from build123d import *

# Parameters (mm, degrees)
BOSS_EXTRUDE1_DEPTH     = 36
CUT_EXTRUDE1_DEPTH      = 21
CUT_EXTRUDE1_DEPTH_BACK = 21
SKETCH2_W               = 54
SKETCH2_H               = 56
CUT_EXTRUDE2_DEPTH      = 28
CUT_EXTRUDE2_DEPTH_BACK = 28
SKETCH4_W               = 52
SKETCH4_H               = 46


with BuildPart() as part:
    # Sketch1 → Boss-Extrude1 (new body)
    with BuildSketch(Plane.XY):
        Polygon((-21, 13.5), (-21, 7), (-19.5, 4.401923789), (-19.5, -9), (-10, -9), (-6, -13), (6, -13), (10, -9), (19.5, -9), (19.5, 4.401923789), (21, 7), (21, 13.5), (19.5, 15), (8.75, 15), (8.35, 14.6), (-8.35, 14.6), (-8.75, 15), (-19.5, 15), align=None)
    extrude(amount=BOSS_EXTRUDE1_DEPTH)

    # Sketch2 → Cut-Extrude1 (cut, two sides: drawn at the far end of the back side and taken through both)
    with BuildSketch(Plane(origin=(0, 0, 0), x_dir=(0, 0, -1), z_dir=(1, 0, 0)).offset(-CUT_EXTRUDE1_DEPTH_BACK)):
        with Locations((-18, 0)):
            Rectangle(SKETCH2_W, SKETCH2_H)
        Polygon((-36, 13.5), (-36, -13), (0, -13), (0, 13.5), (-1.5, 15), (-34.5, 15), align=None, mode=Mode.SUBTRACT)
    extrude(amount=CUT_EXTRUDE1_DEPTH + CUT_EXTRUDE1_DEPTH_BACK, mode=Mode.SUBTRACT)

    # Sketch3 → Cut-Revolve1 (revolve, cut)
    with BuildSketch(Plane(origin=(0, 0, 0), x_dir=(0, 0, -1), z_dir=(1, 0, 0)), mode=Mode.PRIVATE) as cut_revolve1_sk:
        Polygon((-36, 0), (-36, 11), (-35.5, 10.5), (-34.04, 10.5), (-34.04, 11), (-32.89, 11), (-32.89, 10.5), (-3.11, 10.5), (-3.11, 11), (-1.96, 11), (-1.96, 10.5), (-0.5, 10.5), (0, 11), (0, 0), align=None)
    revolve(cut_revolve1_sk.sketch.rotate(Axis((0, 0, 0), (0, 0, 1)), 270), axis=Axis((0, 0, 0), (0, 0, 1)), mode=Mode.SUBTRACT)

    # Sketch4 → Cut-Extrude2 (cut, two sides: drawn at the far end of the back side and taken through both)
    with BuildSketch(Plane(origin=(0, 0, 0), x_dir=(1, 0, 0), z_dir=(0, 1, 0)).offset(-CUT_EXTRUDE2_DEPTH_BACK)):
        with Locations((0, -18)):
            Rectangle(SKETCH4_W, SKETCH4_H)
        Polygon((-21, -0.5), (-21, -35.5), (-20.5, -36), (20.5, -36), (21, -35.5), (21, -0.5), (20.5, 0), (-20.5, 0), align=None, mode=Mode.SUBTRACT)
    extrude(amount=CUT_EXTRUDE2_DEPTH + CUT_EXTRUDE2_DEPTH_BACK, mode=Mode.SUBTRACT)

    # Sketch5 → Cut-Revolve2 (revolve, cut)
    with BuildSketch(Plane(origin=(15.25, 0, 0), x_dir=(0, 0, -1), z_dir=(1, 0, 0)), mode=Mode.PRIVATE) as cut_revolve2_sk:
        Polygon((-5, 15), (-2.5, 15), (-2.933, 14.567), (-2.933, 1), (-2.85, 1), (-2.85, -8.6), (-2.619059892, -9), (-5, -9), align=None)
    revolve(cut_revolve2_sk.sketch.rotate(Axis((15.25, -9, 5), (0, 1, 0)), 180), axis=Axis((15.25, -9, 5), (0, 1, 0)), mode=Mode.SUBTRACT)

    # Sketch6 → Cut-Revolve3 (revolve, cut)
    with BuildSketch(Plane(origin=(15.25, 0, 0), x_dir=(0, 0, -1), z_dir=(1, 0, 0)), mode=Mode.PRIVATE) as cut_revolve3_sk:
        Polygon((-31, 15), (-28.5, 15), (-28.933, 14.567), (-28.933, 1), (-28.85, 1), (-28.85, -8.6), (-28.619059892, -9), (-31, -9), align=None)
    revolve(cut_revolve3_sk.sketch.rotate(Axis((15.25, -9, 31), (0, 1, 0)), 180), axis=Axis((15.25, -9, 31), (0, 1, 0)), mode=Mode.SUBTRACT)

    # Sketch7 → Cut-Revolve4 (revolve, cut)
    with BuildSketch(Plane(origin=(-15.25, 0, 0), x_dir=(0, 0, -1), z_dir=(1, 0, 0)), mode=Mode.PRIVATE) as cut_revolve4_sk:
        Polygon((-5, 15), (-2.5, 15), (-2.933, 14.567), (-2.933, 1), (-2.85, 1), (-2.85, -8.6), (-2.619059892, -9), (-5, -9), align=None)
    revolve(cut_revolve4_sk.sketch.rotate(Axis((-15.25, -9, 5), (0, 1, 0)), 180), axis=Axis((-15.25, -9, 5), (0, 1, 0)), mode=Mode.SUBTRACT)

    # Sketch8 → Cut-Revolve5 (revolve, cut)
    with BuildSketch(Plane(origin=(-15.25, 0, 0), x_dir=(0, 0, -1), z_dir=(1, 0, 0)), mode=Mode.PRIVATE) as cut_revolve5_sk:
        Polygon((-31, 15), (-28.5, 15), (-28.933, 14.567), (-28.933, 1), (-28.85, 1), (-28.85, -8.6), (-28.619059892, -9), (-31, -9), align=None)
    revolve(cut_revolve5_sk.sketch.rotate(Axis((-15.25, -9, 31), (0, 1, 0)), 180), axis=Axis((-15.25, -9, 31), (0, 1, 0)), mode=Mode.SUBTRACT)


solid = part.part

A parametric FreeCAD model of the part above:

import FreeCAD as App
import Part
import Sketcher

V = App.Vector
Q = App.Units.Quantity

doc = App.newDocument("Part")
params = doc.addObject("Spreadsheet::Sheet", "Params")
for row, (alias, value) in enumerate([
    ("sketch1_width", "12 mm"),
    ("sketch1_length", "3 mm"),
    ("sketch1_width2", "9.5 mm"),
    ("sketch1_width3", "16.7 mm"),
    ("sketch1_height", "6.5 mm"),
    ("pad1_length", "36 mm"),
    ("sketch2_width", "56 mm"),
    ("sketch2_height", "54 mm"),
    ("sketch2_height2", "33 mm"),
    ("sketch2_height3", "36 mm"),
    ("sketch2_width2", "26.5 mm"),
    ("sketch3_width", "11 mm"),
    ("sketch3_height", "36 mm"),
    ("sketch3_width2", "0.5 mm"),
    ("sketch3_height2", "1.46 mm"),
    ("sketch3_height3", "1.15 mm"),
    ("groove_angle", "360 deg"),
    ("sketch4_width", "52 mm"),
    ("sketch4_width2", "41 mm"),
    ("sketch4_height", "46 mm"),
    ("sketch4_height2", "35 mm"),
    ("sketch5_width", "24 mm"),
    ("sketch5_width2", "9.6 mm"),
    ("sketch5_height", "2.5 mm"),
    ("groove2_angle", "360 deg"),
    ("sketch6_width", "24 mm"),
    ("sketch6_width2", "9.6 mm"),
    ("sketch6_height", "2.5 mm"),
    ("groove3_angle", "360 deg"),
    ("sketch7_width", "24 mm"),
    ("sketch7_width2", "9.6 mm"),
    ("sketch7_height", "2.5 mm"),
    ("groove4_angle", "360 deg"),
    ("sketch8_width", "24 mm"),
    ("sketch8_width2", "9.6 mm"),
    ("sketch8_height", "2.5 mm"),
    ("groove5_angle", "360 deg"),
], start=1):
    params.set(f"A{row}", alias)
    params.set(f"B{row}", "=" + value)
    params.setAlias(f"B{row}", alias)

body = doc.addObject("PartDesign::Body", "Body")

# Sketch on XY plane
sketch1 = body.newObject("Sketcher::SketchObject", "Sketch")
sketch1.AttachmentSupport = (doc.getObject("XY_Plane"), [""])
sketch1.MapMode = "FlatFace"
sketch1.addGeometry(Part.LineSegment(V(-21, 13.5, 0), V(-21, 7, 0)), False)
sketch1.addGeometry(Part.LineSegment(V(-21, 7, 0), V(-19.5, 4.4, 0)), False)
sketch1.addGeometry(Part.LineSegment(V(-19.5, 4.4, 0), V(-19.5, -9, 0)), False)
sketch1.addGeometry(Part.LineSegment(V(-19.5, -9, 0), V(-10, -9, 0)), False)
sketch1.addGeometry(Part.LineSegment(V(-10, -9, 0), V(-6, -13, 0)), False)
sketch1.addGeometry(Part.LineSegment(V(-6, -13, 0), V(6, -13, 0)), False)
sketch1.addGeometry(Part.LineSegment(V(6, -13, 0), V(10, -9, 0)), False)
sketch1.addGeometry(Part.LineSegment(V(10, -9, 0), V(19.5, -9, 0)), False)
sketch1.addGeometry(Part.LineSegment(V(19.5, -9, 0), V(19.5, 4.4, 0)), False)
sketch1.addGeometry(Part.LineSegment(V(19.5, 4.4, 0), V(21, 7, 0)), False)
sketch1.addGeometry(Part.LineSegment(V(21, 7, 0), V(21, 13.5, 0)), False)
sketch1.addGeometry(Part.LineSegment(V(21, 13.5, 0), V(19.5, 15, 0)), False)
sketch1.addGeometry(Part.LineSegment(V(19.5, 15, 0), V(8.8, 15, 0)), False)
sketch1.addGeometry(Part.LineSegment(V(8.8, 15, 0), V(8.3, 14.6, 0)), False)
sketch1.addGeometry(Part.LineSegment(V(8.3, 14.6, 0), V(-8.3, 14.6, 0)), False)
sketch1.addGeometry(Part.LineSegment(V(-8.3, 14.6, 0), V(-8.8, 15, 0)), False)
sketch1.addGeometry(Part.LineSegment(V(-8.8, 15, 0), V(-19.5, 15, 0)), False)
sketch1.addGeometry(Part.LineSegment(V(-19.5, 15, 0), V(-21, 13.5, 0)), False)
sketch1.addConstraint(Sketcher.Constraint("Coincident", 0, 2, 1, 1))
sketch1.addConstraint(Sketcher.Constraint("Coincident", 1, 2, 2, 1))
sketch1.addConstraint(Sketcher.Constraint("Coincident", 2, 2, 3, 1))
sketch1.addConstraint(Sketcher.Constraint("Coincident", 3, 2, 4, 1))
sketch1.addConstraint(Sketcher.Constraint("Coincident", 4, 2, 5, 1))
sketch1.addConstraint(Sketcher.Constraint("Coincident", 5, 2, 6, 1))
sketch1.addConstraint(Sketcher.Constraint("Coincident", 6, 2, 7, 1))
sketch1.addConstraint(Sketcher.Constraint("Coincident", 7, 2, 8, 1))
sketch1.addConstraint(Sketcher.Constraint("Coincident", 8, 2, 9, 1))
sketch1.addConstraint(Sketcher.Constraint("Coincident", 9, 2, 10, 1))
sketch1.addConstraint(Sketcher.Constraint("Coincident", 10, 2, 11, 1))
sketch1.addConstraint(Sketcher.Constraint("Coincident", 11, 2, 12, 1))
sketch1.addConstraint(Sketcher.Constraint("Coincident", 12, 2, 13, 1))
sketch1.addConstraint(Sketcher.Constraint("Coincident", 13, 2, 14, 1))
sketch1.addConstraint(Sketcher.Constraint("Coincident", 14, 2, 15, 1))
sketch1.addConstraint(Sketcher.Constraint("Coincident", 15, 2, 16, 1))
sketch1.addConstraint(Sketcher.Constraint("Coincident", 16, 2, 17, 1))
sketch1.addConstraint(Sketcher.Constraint("Coincident", 17, 2, 0, 1))
sketch1.addConstraint(Sketcher.Constraint("Vertical", 0))
sketch1.addConstraint(Sketcher.Constraint("Vertical", 2))
sketch1.addConstraint(Sketcher.Constraint("Horizontal", 3))
sketch1.addConstraint(Sketcher.Constraint("Horizontal", 5))
sketch1.addConstraint(Sketcher.Constraint("Horizontal", 7))
sketch1.addConstraint(Sketcher.Constraint("Vertical", 8))
sketch1.addConstraint(Sketcher.Constraint("Vertical", 10))
sketch1.addConstraint(Sketcher.Constraint("Horizontal", 12))
sketch1.addConstraint(Sketcher.Constraint("Horizontal", 14))
sketch1.addConstraint(Sketcher.Constraint("Horizontal", 16))
sketch1.addConstraint(Sketcher.Constraint("Symmetric", 3, 2, 6, 2, -2))
sketch1.addConstraint(Sketcher.Constraint("Symmetric", 1, 2, 8, 2, -2))
sketch1.addConstraint(Sketcher.Constraint("Symmetric", 0, 2, 9, 2, -2))
sketch1.addConstraint(Sketcher.Constraint("Symmetric", 12, 2, 15, 2, -2))
sketch1.addConstraint(Sketcher.Constraint("Perpendicular", 4, 6))
sketch1.addConstraint(Sketcher.Constraint("Perpendicular", 6, 11))
sketch1.addConstraint(Sketcher.Constraint("Perpendicular", 11, 13))
sketch1.addConstraint(Sketcher.Constraint("Perpendicular", 13, 15))
sketch1.addConstraint(Sketcher.Constraint("Perpendicular", 15, 17))
sketch1.addConstraint(Sketcher.Constraint("Horizontal", 10, 2, 17, 2))
sketch1.addConstraint(Sketcher.Constraint("Vertical", 8, 2, 11, 2))
sketch1.addConstraint(Sketcher.Constraint("Vertical", 2, 2, 16, 2))
sketch1.addConstraint(Sketcher.Constraint("DistanceX", 5, 1, 5, 2, Q("12 mm")))
sketch1.addConstraint(Sketcher.Constraint("Angle", 1, Q("-60 deg")))
sketch1.addConstraint(Sketcher.Constraint("Distance", 1, Q("3 mm")))
sketch1.addConstraint(Sketcher.Constraint("DistanceX", 3, 1, 3, 2, Q("9.5 mm")))
sketch1.addConstraint(Sketcher.Constraint("DistanceX", 14, 2, 14, 1, Q("16.7 mm")))
sketch1.addConstraint(Sketcher.Constraint("DistanceY", 0, 2, 0, 1, Q("6.5 mm")))
sketch1.addConstraint(Sketcher.Constraint("DistanceX", 0, 2, -1, 1, Q("21 mm")))
sketch1.addConstraint(Sketcher.Constraint("DistanceY", -1, 1, 0, 2, Q("7 mm")))
sketch1.addConstraint(Sketcher.Constraint("DistanceY", 2, 2, -1, 1, Q("9 mm")))
sketch1.addConstraint(Sketcher.Constraint("DistanceX", 12, 2, 12, 1, Q("10.75 mm")))
sketch1.setExpression("Constraints[40]", "Params.sketch1_width")
sketch1.setExpression("Constraints[42]", "Params.sketch1_length")
sketch1.setExpression("Constraints[43]", "Params.sketch1_width2")
sketch1.setExpression("Constraints[44]", "Params.sketch1_width3")
sketch1.setExpression("Constraints[45]", "Params.sketch1_height")
pad1 = body.newObject("PartDesign::Pad", "Pad")
pad1.Profile = sketch1
pad1.setExpression("Length", "Params.pad1_length")

# Sketch on YZ plane
sketch2 = body.newObject("Sketcher::SketchObject", "Sketch001")
sketch2.AttachmentSupport = (doc.getObject("YZ_Plane"), [""])
sketch2.MapMode = "FlatFace"
sketch2.addGeometry(Part.LineSegment(V(28, 45, 0), V(-28, 45, 0)), False)
sketch2.addGeometry(Part.LineSegment(V(-28, 45, 0), V(-28, -9, 0)), False)
sketch2.addGeometry(Part.LineSegment(V(-28, -9, 0), V(28, -9, 0)), False)
sketch2.addGeometry(Part.LineSegment(V(28, -9, 0), V(28, 45, 0)), False)
sketch2.addGeometry(Part.LineSegment(V(-13, 36, 0), V(13.5, 36, 0)), False)
sketch2.addGeometry(Part.LineSegment(V(13.5, 36, 0), V(15, 34.5, 0)), False)
sketch2.addGeometry(Part.LineSegment(V(15, 34.5, 0), V(15, 1.5, 0)), False)
sketch2.addGeometry(Part.LineSegment(V(15, 1.5, 0), V(13.5, 0, 0)), False)
sketch2.addGeometry(Part.LineSegment(V(13.5, 0, 0), V(-13, 0, 0)), False)
sketch2.addGeometry(Part.LineSegment(V(-13, 0, 0), V(-13, 36, 0)), False)
sketch2.addConstraint(Sketcher.Constraint("Coincident", 0, 2, 1, 1))
sketch2.addConstraint(Sketcher.Constraint("Coincident", 1, 2, 2, 1))
sketch2.addConstraint(Sketcher.Constraint("Coincident", 2, 2, 3, 1))
sketch2.addConstraint(Sketcher.Constraint("Coincident", 3, 2, 0, 1))
sketch2.addConstraint(Sketcher.Constraint("Coincident", 4, 2, 5, 1))
sketch2.addConstraint(Sketcher.Constraint("Coincident", 5, 2, 6, 1))
sketch2.addConstraint(Sketcher.Constraint("Coincident", 6, 2, 7, 1))
sketch2.addConstraint(Sketcher.Constraint("Coincident", 7, 2, 8, 1))
sketch2.addConstraint(Sketcher.Constraint("Coincident", 8, 2, 9, 1))
sketch2.addConstraint(Sketcher.Constraint("Coincident", 9, 2, 4, 1))
sketch2.addConstraint(Sketcher.Constraint("Horizontal", 0))
sketch2.addConstraint(Sketcher.Constraint("Vertical", 1))
sketch2.addConstraint(Sketcher.Constraint("Horizontal", 2))
sketch2.addConstraint(Sketcher.Constraint("Vertical", 3))
sketch2.addConstraint(Sketcher.Constraint("Horizontal", 4))
sketch2.addConstraint(Sketcher.Constraint("Vertical", 6))
sketch2.addConstraint(Sketcher.Constraint("Horizontal", 8))
sketch2.addConstraint(Sketcher.Constraint("Vertical", 9))
sketch2.addConstraint(Sketcher.Constraint("PointOnObject", 7, 2, -1))
sketch2.addConstraint(Sketcher.Constraint("Perpendicular", 5, 7))
sketch2.addConstraint(Sketcher.Constraint("Vertical", 4, 2, 7, 2))
sketch2.addConstraint(Sketcher.Constraint("Equal", 5, 7))
sketch2.addConstraint(Sketcher.Constraint("DistanceX", 0, 2, 0, 1, Q("56 mm")))
sketch2.addConstraint(Sketcher.Constraint("DistanceY", 1, 2, 1, 1, Q("54 mm")))
sketch2.addConstraint(Sketcher.Constraint("DistanceY", 6, 2, 6, 1, Q("33 mm")))
sketch2.addConstraint(Sketcher.Constraint("DistanceY", 9, 1, 9, 2, Q("36 mm")))
sketch2.addConstraint(Sketcher.Constraint("DistanceX", 4, 1, 4, 2, Q("26.5 mm")))
sketch2.addConstraint(Sketcher.Constraint("DistanceX", 0, 2, -1, 1, Q("28 mm")))
sketch2.addConstraint(Sketcher.Constraint("DistanceY", -1, 1, 0, 2, Q("45 mm")))
sketch2.addConstraint(Sketcher.Constraint("DistanceX", -1, 1, 5, 2, Q("15 mm")))
sketch2.setExpression("Constraints[22]", "Params.sketch2_width")
sketch2.setExpression("Constraints[23]", "Params.sketch2_height")
sketch2.setExpression("Constraints[24]", "Params.sketch2_height2")
sketch2.setExpression("Constraints[25]", "Params.sketch2_height3")
sketch2.setExpression("Constraints[26]", "Params.sketch2_width2")
pocket1 = body.newObject("PartDesign::Pocket", "Pocket")
pocket1.Profile = sketch2
pocket1.Type = "ThroughAll"
pocket1.Midplane = True

# Sketch on YZ plane
sketch3 = body.newObject("Sketcher::SketchObject", "Sketch002")
sketch3.AttachmentSupport = (doc.getObject("YZ_Plane"), [""])
sketch3.MapMode = "FlatFace"
sketch3.addGeometry(Part.LineSegment(V(11, 36, 0), V(0, 36, 0)), False)
sketch3.addGeometry(Part.LineSegment(V(0, 36, 0), V(0, 0, 0)), False)
sketch3.addGeometry(Part.LineSegment(V(0, 0, 0), V(11, 0, 0)), False)
sketch3.addGeometry(Part.LineSegment(V(11, 0, 0), V(10.5, 0.5, 0)), False)
sketch3.addGeometry(Part.LineSegment(V(10.5, 0.5, 0), V(10.5, 2, 0)), False)
sketch3.addGeometry(Part.LineSegment(V(10.5, 2, 0), V(11, 2, 0)), False)
sketch3.addGeometry(Part.LineSegment(V(11, 2, 0), V(11, 3.1, 0)), False)
sketch3.addGeometry(Part.LineSegment(V(11, 3.1, 0), V(10.5, 3.1, 0)), False)
sketch3.addGeometry(Part.LineSegment(V(10.5, 3.1, 0), V(10.5, 32.9, 0)), False)
sketch3.addGeometry(Part.LineSegment(V(10.5, 32.9, 0), V(11, 32.9, 0)), False)
sketch3.addGeometry(Part.LineSegment(V(11, 32.9, 0), V(11, 34, 0)), False)
sketch3.addGeometry(Part.LineSegment(V(11, 34, 0), V(10.5, 34, 0)), False)
sketch3.addGeometry(Part.LineSegment(V(10.5, 34, 0), V(10.5, 35.5, 0)), False)
sketch3.addGeometry(Part.LineSegment(V(10.5, 35.5, 0), V(11, 36, 0)), False)
sketch3.addConstraint(Sketcher.Constraint("Coincident", 0, 2, 1, 1))
sketch3.addConstraint(Sketcher.Constraint("Coincident", 1, 2, 2, 1))
sketch3.addConstraint(Sketcher.Constraint("Coincident", 2, 2, 3, 1))
sketch3.addConstraint(Sketcher.Constraint("Coincident", 3, 2, 4, 1))
sketch3.addConstraint(Sketcher.Constraint("Coincident", 4, 2, 5, 1))
sketch3.addConstraint(Sketcher.Constraint("Coincident", 5, 2, 6, 1))
sketch3.addConstraint(Sketcher.Constraint("Coincident", 6, 2, 7, 1))
sketch3.addConstraint(Sketcher.Constraint("Coincident", 7, 2, 8, 1))
sketch3.addConstraint(Sketcher.Constraint("Coincident", 8, 2, 9, 1))
sketch3.addConstraint(Sketcher.Constraint("Coincident", 9, 2, 10, 1))
sketch3.addConstraint(Sketcher.Constraint("Coincident", 10, 2, 11, 1))
sketch3.addConstraint(Sketcher.Constraint("Coincident", 11, 2, 12, 1))
sketch3.addConstraint(Sketcher.Constraint("Coincident", 12, 2, 13, 1))
sketch3.addConstraint(Sketcher.Constraint("Coincident", 13, 2, 0, 1))
sketch3.addConstraint(Sketcher.Constraint("Horizontal", 0))
sketch3.addConstraint(Sketcher.Constraint("Vertical", 1))
sketch3.addConstraint(Sketcher.Constraint("Horizontal", 2))
sketch3.addConstraint(Sketcher.Constraint("Vertical", 4))
sketch3.addConstraint(Sketcher.Constraint("Horizontal", 5))
sketch3.addConstraint(Sketcher.Constraint("Vertical", 6))
sketch3.addConstraint(Sketcher.Constraint("Horizontal", 7))
sketch3.addConstraint(Sketcher.Constraint("Vertical", 8))
sketch3.addConstraint(Sketcher.Constraint("Horizontal", 9))
sketch3.addConstraint(Sketcher.Constraint("Vertical", 10))
sketch3.addConstraint(Sketcher.Constraint("Horizontal", 11))
sketch3.addConstraint(Sketcher.Constraint("Vertical", 12))
sketch3.addConstraint(Sketcher.Constraint("Coincident", 1, 2, -1, 1))
sketch3.addConstraint(Sketcher.Constraint("Perpendicular", 3, 13))
sketch3.addConstraint(Sketcher.Constraint("Vertical", 2, 2, 5, 2))
sketch3.addConstraint(Sketcher.Constraint("Vertical", 4, 2, 7, 2))
sketch3.addConstraint(Sketcher.Constraint("Vertical", 6, 2, 9, 2))
sketch3.addConstraint(Sketcher.Constraint("Vertical", 8, 2, 11, 2))
sketch3.addConstraint(Sketcher.Constraint("Vertical", 10, 2, 13, 2))
sketch3.addConstraint(Sketcher.Constraint("Equal", 6, 10))
sketch3.addConstraint(Sketcher.Constraint("Equal", 4, 12))
sketch3.addConstraint(Sketcher.Constraint("Equal", 3, 13))
sketch3.addConstraint(Sketcher.Constraint("DistanceX", 0, 2, 0, 1, Q("11 mm")))
sketch3.addConstraint(Sketcher.Constraint("DistanceY", 1, 2, 1, 1, Q("36 mm")))
sketch3.addConstraint(Sketcher.Constraint("DistanceX", 5, 1, 5, 2, Q("0.5 mm")))
sketch3.addConstraint(Sketcher.Constraint("DistanceY", 4, 1, 4, 2, Q("1.46 mm")))
sketch3.addConstraint(Sketcher.Constraint("DistanceY", 6, 1, 6, 2, Q("1.15 mm")))
sketch3.setExpression("Constraints[36]", "Params.sketch3_width")
sketch3.setExpression("Constraints[37]", "Params.sketch3_height")
sketch3.setExpression("Constraints[38]", "Params.sketch3_width2")
sketch3.setExpression("Constraints[39]", "Params.sketch3_height2")
sketch3.setExpression("Constraints[40]", "Params.sketch3_height3")
groove = body.newObject("PartDesign::Groove", "Groove")
groove.Profile = sketch3
groove.ReferenceAxis = (sketch3, ["V_Axis"])
groove.setExpression("Angle", "Params.groove_angle")

# Sketch on XZ plane
sketch4 = body.newObject("Sketcher::SketchObject", "Sketch003")
sketch4.AttachmentSupport = (doc.getObject("XZ_Plane"), [""])
sketch4.MapMode = "FlatFace"
sketch4.addGeometry(Part.LineSegment(V(-26, -5, 0), V(-26, 41, 0)), False)
sketch4.addGeometry(Part.LineSegment(V(-26, 41, 0), V(26, 41, 0)), False)
sketch4.addGeometry(Part.LineSegment(V(26, 41, 0), V(26, -5, 0)), False)
sketch4.addGeometry(Part.LineSegment(V(26, -5, 0), V(-26, -5, 0)), False)
sketch4.addGeometry(Part.LineSegment(V(-21, 35.5, 0), V(-21, 0.5, 0)), False)
sketch4.addGeometry(Part.LineSegment(V(-21, 0.5, 0), V(-20.5, 0, 0)), False)
sketch4.addGeometry(Part.LineSegment(V(-20.5, 0, 0), V(20.5, 0, 0)), False)
sketch4.addGeometry(Part.LineSegment(V(20.5, 0, 0), V(21, 0.5, 0)), False)
sketch4.addGeometry(Part.LineSegment(V(21, 0.5, 0), V(21, 35.5, 0)), False)
sketch4.addGeometry(Part.LineSegment(V(21, 35.5, 0), V(20.5, 36, 0)), False)
sketch4.addGeometry(Part.LineSegment(V(20.5, 36, 0), V(-20.5, 36, 0)), False)
sketch4.addGeometry(Part.LineSegment(V(-20.5, 36, 0), V(-21, 35.5, 0)), False)
sketch4.addConstraint(Sketcher.Constraint("Coincident", 0, 2, 1, 1))
sketch4.addConstraint(Sketcher.Constraint("Coincident", 1, 2, 2, 1))
sketch4.addConstraint(Sketcher.Constraint("Coincident", 2, 2, 3, 1))
sketch4.addConstraint(Sketcher.Constraint("Coincident", 3, 2, 0, 1))
sketch4.addConstraint(Sketcher.Constraint("Coincident", 4, 2, 5, 1))
sketch4.addConstraint(Sketcher.Constraint("Coincident", 5, 2, 6, 1))
sketch4.addConstraint(Sketcher.Constraint("Coincident", 6, 2, 7, 1))
sketch4.addConstraint(Sketcher.Constraint("Coincident", 7, 2, 8, 1))
sketch4.addConstraint(Sketcher.Constraint("Coincident", 8, 2, 9, 1))
sketch4.addConstraint(Sketcher.Constraint("Coincident", 9, 2, 10, 1))
sketch4.addConstraint(Sketcher.Constraint("Coincident", 10, 2, 11, 1))
sketch4.addConstraint(Sketcher.Constraint("Coincident", 11, 2, 4, 1))
sketch4.addConstraint(Sketcher.Constraint("Vertical", 0))
sketch4.addConstraint(Sketcher.Constraint("Horizontal", 1))
sketch4.addConstraint(Sketcher.Constraint("Vertical", 2))
sketch4.addConstraint(Sketcher.Constraint("Horizontal", 3))
sketch4.addConstraint(Sketcher.Constraint("Vertical", 4))
sketch4.addConstraint(Sketcher.Constraint("Horizontal", 6))
sketch4.addConstraint(Sketcher.Constraint("Vertical", 8))
sketch4.addConstraint(Sketcher.Constraint("Horizontal", 10))
sketch4.addConstraint(Sketcher.Constraint("Symmetric", 5, 2, 6, 2, -1, 1))
sketch4.addConstraint(Sketcher.Constraint("Symmetric", 4, 2, 7, 2, -2))
sketch4.addConstraint(Sketcher.Constraint("Perpendicular", 5, 7))
sketch4.addConstraint(Sketcher.Constraint("Perpendicular", 7, 9))
sketch4.addConstraint(Sketcher.Constraint("Perpendicular", 9, 11))
sketch4.addConstraint(Sketcher.Constraint("Horizontal", 8, 2, 11, 2))
sketch4.addConstraint(Sketcher.Constraint("Vertical", 6, 2, 9, 2))
sketch4.addConstraint(Sketcher.Constraint("DistanceX", 1, 1, 1, 2, Q("52 mm")))
sketch4.addConstraint(Sketcher.Constraint("DistanceX", 6, 1, 6, 2, Q("41 mm")))
sketch4.addConstraint(Sketcher.Constraint("DistanceY", 0, 1, 0, 2, Q("46 mm")))
sketch4.addConstraint(Sketcher.Constraint("DistanceY", 4, 2, 4, 1, Q("35 mm")))
sketch4.addConstraint(Sketcher.Constraint("DistanceX", 0, 2, -1, 1, Q("26 mm")))
sketch4.addConstraint(Sketcher.Constraint("DistanceY", -1, 1, 0, 2, Q("41 mm")))
sketch4.addConstraint(Sketcher.Constraint("DistanceX", 4, 2, -1, 1, Q("21 mm")))
sketch4.setExpression("Constraints[27]", "Params.sketch4_width")
sketch4.setExpression("Constraints[28]", "Params.sketch4_width2")
sketch4.setExpression("Constraints[29]", "Params.sketch4_height")
sketch4.setExpression("Constraints[30]", "Params.sketch4_height2")
pocket2 = body.newObject("PartDesign::Pocket", "Pocket001")
pocket2.Profile = sketch4
pocket2.Type = "ThroughAll"
pocket2.Midplane = True

# Sketch on YZ plane
sketch5 = body.newObject("Sketcher::SketchObject", "Sketch004")
sketch5.AttachmentSupport = (doc.getObject("YZ_Plane"), [""])
sketch5.MapMode = "FlatFace"
sketch5.AttachmentOffset = App.Placement(V(0, 0, 15.25), App.Rotation())
sketch5.addGeometry(Part.LineSegment(V(15, 2.5, 0), V(15, 5, 0)), False)
sketch5.addGeometry(Part.LineSegment(V(15, 5, 0), V(-9, 5, 0)), False)
sketch5.addGeometry(Part.LineSegment(V(-9, 5, 0), V(-9, 2.62, 0)), False)
sketch5.addGeometry(Part.LineSegment(V(-9, 2.62, 0), V(-8.6, 2.85, 0)), False)
sketch5.addGeometry(Part.LineSegment(V(-8.6, 2.85, 0), V(1, 2.85, 0)), False)
sketch5.addGeometry(Part.LineSegment(V(1, 2.85, 0), V(1, 2.93, 0)), False)
sketch5.addGeometry(Part.LineSegment(V(1, 2.93, 0), V(14.57, 2.93, 0)), False)
sketch5.addGeometry(Part.LineSegment(V(14.57, 2.93, 0), V(15, 2.5, 0)), False)
sketch5.addGeometry(Part.LineSegment(V(-9, 5, 0), V(15, 5, 0)), True)  # axis
sketch5.addConstraint(Sketcher.Constraint("Coincident", 0, 2, 1, 1))
sketch5.addConstraint(Sketcher.Constraint("Coincident", 1, 2, 2, 1))
sketch5.addConstraint(Sketcher.Constraint("Coincident", 2, 2, 3, 1))
sketch5.addConstraint(Sketcher.Constraint("Coincident", 3, 2, 4, 1))
sketch5.addConstraint(Sketcher.Constraint("Coincident", 4, 2, 5, 1))
sketch5.addConstraint(Sketcher.Constraint("Coincident", 5, 2, 6, 1))
sketch5.addConstraint(Sketcher.Constraint("Coincident", 6, 2, 7, 1))
sketch5.addConstraint(Sketcher.Constraint("Coincident", 7, 2, 0, 1))
sketch5.addConstraint(Sketcher.Constraint("Vertical", 0))
sketch5.addConstraint(Sketcher.Constraint("Horizontal", 1))
sketch5.addConstraint(Sketcher.Constraint("Vertical", 2))
sketch5.addConstraint(Sketcher.Constraint("Horizontal", 4))
sketch5.addConstraint(Sketcher.Constraint("Vertical", 5))
sketch5.addConstraint(Sketcher.Constraint("Horizontal", 6))
sketch5.addConstraint(Sketcher.Constraint("Horizontal", 8))
sketch5.addConstraint(Sketcher.Constraint("Coincident", 8, 1, 1, 2))
sketch5.addConstraint(Sketcher.Constraint("Vertical", 7, 2, 8, 2))
sketch5.addConstraint(Sketcher.Constraint("DistanceX", 1, 2, 1, 1, Q("24 mm")))
sketch5.addConstraint(Sketcher.Constraint("Angle", 3, Q("30 deg")))
sketch5.addConstraint(Sketcher.Constraint("Angle", 7, Q("-45 deg")))
sketch5.addConstraint(Sketcher.Constraint("DistanceX", 4, 1, 4, 2, Q("9.6 mm")))
sketch5.addConstraint(Sketcher.Constraint("DistanceY", 0, 1, 0, 2, Q("2.5 mm")))
sketch5.addConstraint(Sketcher.Constraint("DistanceX", -1, 1, 0, 2, Q("15 mm")))
sketch5.addConstraint(Sketcher.Constraint("DistanceY", -1, 1, 0, 2, Q("5 mm")))
sketch5.addConstraint(Sketcher.Constraint("DistanceX", -1, 1, 4, 2, Q("1 mm")))
sketch5.addConstraint(Sketcher.Constraint("DistanceX", 6, 1, 6, 2, Q("13.567 mm")))
sketch5.addConstraint(Sketcher.Constraint("DistanceY", 5, 1, 5, 2, Q("0.083 mm")))
sketch5.setExpression("Constraints[17]", "Params.sketch5_width")
sketch5.setExpression("Constraints[20]", "Params.sketch5_width2")
sketch5.setExpression("Constraints[21]", "Params.sketch5_height")
groove2 = body.newObject("PartDesign::Groove", "Groove001")
groove2.Profile = sketch5
groove2.ReferenceAxis = (sketch5, ["Axis0"])
groove2.setExpression("Angle", "Params.groove2_angle")

# Sketch on YZ plane
sketch6 = body.newObject("Sketcher::SketchObject", "Sketch005")
sketch6.AttachmentSupport = (doc.getObject("YZ_Plane"), [""])
sketch6.MapMode = "FlatFace"
sketch6.AttachmentOffset = App.Placement(V(0, 0, 15.25), App.Rotation())
sketch6.addGeometry(Part.LineSegment(V(15, 28.5, 0), V(15, 31, 0)), False)
sketch6.addGeometry(Part.LineSegment(V(15, 31, 0), V(-9, 31, 0)), False)
sketch6.addGeometry(Part.LineSegment(V(-9, 31, 0), V(-9, 28.62, 0)), False)
sketch6.addGeometry(Part.LineSegment(V(-9, 28.62, 0), V(-8.6, 28.85, 0)), False)
sketch6.addGeometry(Part.LineSegment(V(-8.6, 28.85, 0), V(1, 28.85, 0)), False)
sketch6.addGeometry(Part.LineSegment(V(1, 28.85, 0), V(1, 28.93, 0)), False)
sketch6.addGeometry(Part.LineSegment(V(1, 28.93, 0), V(14.57, 28.93, 0)), False)
sketch6.addGeometry(Part.LineSegment(V(14.57, 28.93, 0), V(15, 28.5, 0)), False)
sketch6.addGeometry(Part.LineSegment(V(-9, 31, 0), V(15, 31, 0)), True)  # axis
sketch6.addConstraint(Sketcher.Constraint("Coincident", 0, 2, 1, 1))
sketch6.addConstraint(Sketcher.Constraint("Coincident", 1, 2, 2, 1))
sketch6.addConstraint(Sketcher.Constraint("Coincident", 2, 2, 3, 1))
sketch6.addConstraint(Sketcher.Constraint("Coincident", 3, 2, 4, 1))
sketch6.addConstraint(Sketcher.Constraint("Coincident", 4, 2, 5, 1))
sketch6.addConstraint(Sketcher.Constraint("Coincident", 5, 2, 6, 1))
sketch6.addConstraint(Sketcher.Constraint("Coincident", 6, 2, 7, 1))
sketch6.addConstraint(Sketcher.Constraint("Coincident", 7, 2, 0, 1))
sketch6.addConstraint(Sketcher.Constraint("Vertical", 0))
sketch6.addConstraint(Sketcher.Constraint("Horizontal", 1))
sketch6.addConstraint(Sketcher.Constraint("Vertical", 2))
sketch6.addConstraint(Sketcher.Constraint("Horizontal", 4))
sketch6.addConstraint(Sketcher.Constraint("Vertical", 5))
sketch6.addConstraint(Sketcher.Constraint("Horizontal", 6))
sketch6.addConstraint(Sketcher.Constraint("Horizontal", 8))
sketch6.addConstraint(Sketcher.Constraint("Coincident", 8, 1, 1, 2))
sketch6.addConstraint(Sketcher.Constraint("Vertical", 7, 2, 8, 2))
sketch6.addConstraint(Sketcher.Constraint("DistanceX", 1, 2, 1, 1, Q("24 mm")))
sketch6.addConstraint(Sketcher.Constraint("Angle", 3, Q("30 deg")))
sketch6.addConstraint(Sketcher.Constraint("Angle", 7, Q("-45 deg")))
sketch6.addConstraint(Sketcher.Constraint("DistanceX", 4, 1, 4, 2, Q("9.6 mm")))
sketch6.addConstraint(Sketcher.Constraint("DistanceY", 0, 1, 0, 2, Q("2.5 mm")))
sketch6.addConstraint(Sketcher.Constraint("DistanceX", -1, 1, 0, 2, Q("15 mm")))
sketch6.addConstraint(Sketcher.Constraint("DistanceY", -1, 1, 0, 2, Q("31 mm")))
sketch6.addConstraint(Sketcher.Constraint("DistanceX", -1, 1, 4, 2, Q("1 mm")))
sketch6.addConstraint(Sketcher.Constraint("DistanceX", 6, 1, 6, 2, Q("13.567 mm")))
sketch6.addConstraint(Sketcher.Constraint("DistanceY", 5, 1, 5, 2, Q("0.083 mm")))
sketch6.setExpression("Constraints[17]", "Params.sketch6_width")
sketch6.setExpression("Constraints[20]", "Params.sketch6_width2")
sketch6.setExpression("Constraints[21]", "Params.sketch6_height")
groove3 = body.newObject("PartDesign::Groove", "Groove002")
groove3.Profile = sketch6
groove3.ReferenceAxis = (sketch6, ["Axis0"])
groove3.setExpression("Angle", "Params.groove3_angle")

# Sketch on YZ plane
sketch7 = body.newObject("Sketcher::SketchObject", "Sketch006")
sketch7.AttachmentSupport = (doc.getObject("YZ_Plane"), [""])
sketch7.MapMode = "FlatFace"
sketch7.AttachmentOffset = App.Placement(V(0, 0, -15.25), App.Rotation())
sketch7.addGeometry(Part.LineSegment(V(15, 2.5, 0), V(15, 5, 0)), False)
sketch7.addGeometry(Part.LineSegment(V(15, 5, 0), V(-9, 5, 0)), False)
sketch7.addGeometry(Part.LineSegment(V(-9, 5, 0), V(-9, 2.62, 0)), False)
sketch7.addGeometry(Part.LineSegment(V(-9, 2.62, 0), V(-8.6, 2.85, 0)), False)
sketch7.addGeometry(Part.LineSegment(V(-8.6, 2.85, 0), V(1, 2.85, 0)), False)
sketch7.addGeometry(Part.LineSegment(V(1, 2.85, 0), V(1, 2.93, 0)), False)
sketch7.addGeometry(Part.LineSegment(V(1, 2.93, 0), V(14.57, 2.93, 0)), False)
sketch7.addGeometry(Part.LineSegment(V(14.57, 2.93, 0), V(15, 2.5, 0)), False)
sketch7.addGeometry(Part.LineSegment(V(-9, 5, 0), V(15, 5, 0)), True)  # axis
sketch7.addConstraint(Sketcher.Constraint("Coincident", 0, 2, 1, 1))
sketch7.addConstraint(Sketcher.Constraint("Coincident", 1, 2, 2, 1))
sketch7.addConstraint(Sketcher.Constraint("Coincident", 2, 2, 3, 1))
sketch7.addConstraint(Sketcher.Constraint("Coincident", 3, 2, 4, 1))
sketch7.addConstraint(Sketcher.Constraint("Coincident", 4, 2, 5, 1))
sketch7.addConstraint(Sketcher.Constraint("Coincident", 5, 2, 6, 1))
sketch7.addConstraint(Sketcher.Constraint("Coincident", 6, 2, 7, 1))
sketch7.addConstraint(Sketcher.Constraint("Coincident", 7, 2, 0, 1))
sketch7.addConstraint(Sketcher.Constraint("Vertical", 0))
sketch7.addConstraint(Sketcher.Constraint("Horizontal", 1))
sketch7.addConstraint(Sketcher.Constraint("Vertical", 2))
sketch7.addConstraint(Sketcher.Constraint("Horizontal", 4))
sketch7.addConstraint(Sketcher.Constraint("Vertical", 5))
sketch7.addConstraint(Sketcher.Constraint("Horizontal", 6))
sketch7.addConstraint(Sketcher.Constraint("Horizontal", 8))
sketch7.addConstraint(Sketcher.Constraint("Coincident", 8, 1, 1, 2))
sketch7.addConstraint(Sketcher.Constraint("Vertical", 7, 2, 8, 2))
sketch7.addConstraint(Sketcher.Constraint("DistanceX", 1, 2, 1, 1, Q("24 mm")))
sketch7.addConstraint(Sketcher.Constraint("Angle", 3, Q("30 deg")))
sketch7.addConstraint(Sketcher.Constraint("Angle", 7, Q("-45 deg")))
sketch7.addConstraint(Sketcher.Constraint("DistanceX", 4, 1, 4, 2, Q("9.6 mm")))
sketch7.addConstraint(Sketcher.Constraint("DistanceY", 0, 1, 0, 2, Q("2.5 mm")))
sketch7.addConstraint(Sketcher.Constraint("DistanceX", -1, 1, 0, 2, Q("15 mm")))
sketch7.addConstraint(Sketcher.Constraint("DistanceY", -1, 1, 0, 2, Q("5 mm")))
sketch7.addConstraint(Sketcher.Constraint("DistanceX", -1, 1, 4, 2, Q("1 mm")))
sketch7.addConstraint(Sketcher.Constraint("DistanceX", 6, 1, 6, 2, Q("13.567 mm")))
sketch7.addConstraint(Sketcher.Constraint("DistanceY", 5, 1, 5, 2, Q("0.083 mm")))
sketch7.setExpression("Constraints[17]", "Params.sketch7_width")
sketch7.setExpression("Constraints[20]", "Params.sketch7_width2")
sketch7.setExpression("Constraints[21]", "Params.sketch7_height")
groove4 = body.newObject("PartDesign::Groove", "Groove003")
groove4.Profile = sketch7
groove4.ReferenceAxis = (sketch7, ["Axis0"])
groove4.setExpression("Angle", "Params.groove4_angle")

# Sketch on YZ plane
sketch8 = body.newObject("Sketcher::SketchObject", "Sketch007")
sketch8.AttachmentSupport = (doc.getObject("YZ_Plane"), [""])
sketch8.MapMode = "FlatFace"
sketch8.AttachmentOffset = App.Placement(V(0, 0, -15.25), App.Rotation())
sketch8.addGeometry(Part.LineSegment(V(15, 28.5, 0), V(15, 31, 0)), False)
sketch8.addGeometry(Part.LineSegment(V(15, 31, 0), V(-9, 31, 0)), False)
sketch8.addGeometry(Part.LineSegment(V(-9, 31, 0), V(-9, 28.62, 0)), False)
sketch8.addGeometry(Part.LineSegment(V(-9, 28.62, 0), V(-8.6, 28.85, 0)), False)
sketch8.addGeometry(Part.LineSegment(V(-8.6, 28.85, 0), V(1, 28.85, 0)), False)
sketch8.addGeometry(Part.LineSegment(V(1, 28.85, 0), V(1, 28.93, 0)), False)
sketch8.addGeometry(Part.LineSegment(V(1, 28.93, 0), V(14.57, 28.93, 0)), False)
sketch8.addGeometry(Part.LineSegment(V(14.57, 28.93, 0), V(15, 28.5, 0)), False)
sketch8.addGeometry(Part.LineSegment(V(-9, 31, 0), V(15, 31, 0)), True)  # axis
sketch8.addConstraint(Sketcher.Constraint("Coincident", 0, 2, 1, 1))
sketch8.addConstraint(Sketcher.Constraint("Coincident", 1, 2, 2, 1))
sketch8.addConstraint(Sketcher.Constraint("Coincident", 2, 2, 3, 1))
sketch8.addConstraint(Sketcher.Constraint("Coincident", 3, 2, 4, 1))
sketch8.addConstraint(Sketcher.Constraint("Coincident", 4, 2, 5, 1))
sketch8.addConstraint(Sketcher.Constraint("Coincident", 5, 2, 6, 1))
sketch8.addConstraint(Sketcher.Constraint("Coincident", 6, 2, 7, 1))
sketch8.addConstraint(Sketcher.Constraint("Coincident", 7, 2, 0, 1))
sketch8.addConstraint(Sketcher.Constraint("Vertical", 0))
sketch8.addConstraint(Sketcher.Constraint("Horizontal", 1))
sketch8.addConstraint(Sketcher.Constraint("Vertical", 2))
sketch8.addConstraint(Sketcher.Constraint("Horizontal", 4))
sketch8.addConstraint(Sketcher.Constraint("Vertical", 5))
sketch8.addConstraint(Sketcher.Constraint("Horizontal", 6))
sketch8.addConstraint(Sketcher.Constraint("Horizontal", 8))
sketch8.addConstraint(Sketcher.Constraint("Coincident", 8, 1, 1, 2))
sketch8.addConstraint(Sketcher.Constraint("Vertical", 7, 2, 8, 2))
sketch8.addConstraint(Sketcher.Constraint("DistanceX", 1, 2, 1, 1, Q("24 mm")))
sketch8.addConstraint(Sketcher.Constraint("Angle", 3, Q("30 deg")))
sketch8.addConstraint(Sketcher.Constraint("Angle", 7, Q("-45 deg")))
sketch8.addConstraint(Sketcher.Constraint("DistanceX", 4, 1, 4, 2, Q("9.6 mm")))
sketch8.addConstraint(Sketcher.Constraint("DistanceY", 0, 1, 0, 2, Q("2.5 mm")))
sketch8.addConstraint(Sketcher.Constraint("DistanceX", -1, 1, 0, 2, Q("15 mm")))
sketch8.addConstraint(Sketcher.Constraint("DistanceY", -1, 1, 0, 2, Q("31 mm")))
sketch8.addConstraint(Sketcher.Constraint("DistanceX", -1, 1, 4, 2, Q("1 mm")))
sketch8.addConstraint(Sketcher.Constraint("DistanceX", 6, 1, 6, 2, Q("13.567 mm")))
sketch8.addConstraint(Sketcher.Constraint("DistanceY", 5, 1, 5, 2, Q("0.083 mm")))
sketch8.setExpression("Constraints[17]", "Params.sketch8_width")
sketch8.setExpression("Constraints[20]", "Params.sketch8_width2")
sketch8.setExpression("Constraints[21]", "Params.sketch8_height")
groove5 = body.newObject("PartDesign::Groove", "Groove004")
groove5.Profile = sketch8
groove5.ReferenceAxis = (sketch8, ["Axis0"])
groove5.setExpression("Angle", "Params.groove5_angle")

doc.recompute()
